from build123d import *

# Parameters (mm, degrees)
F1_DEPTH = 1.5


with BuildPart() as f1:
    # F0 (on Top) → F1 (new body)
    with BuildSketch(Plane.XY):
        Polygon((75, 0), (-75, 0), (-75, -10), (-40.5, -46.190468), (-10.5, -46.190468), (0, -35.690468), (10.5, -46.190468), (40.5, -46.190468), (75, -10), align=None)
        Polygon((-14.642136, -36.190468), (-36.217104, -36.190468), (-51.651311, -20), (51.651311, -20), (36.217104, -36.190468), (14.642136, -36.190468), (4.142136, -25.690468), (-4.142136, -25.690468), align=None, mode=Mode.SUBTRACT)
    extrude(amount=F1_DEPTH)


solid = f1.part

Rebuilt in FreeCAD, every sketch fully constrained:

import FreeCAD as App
import Part
import Sketcher
from FreeCAD import Vector


def add_polygon(sketch, points):
    """Adds a closed chain of lines whose ends are joined by coincident constraints."""
    first, n = sketch.GeometryCount, len(points)
    for a, b in zip(points, points[1:] + points[:1]):
        sketch.addGeometry(Part.LineSegment(App.Vector(*a, 0), App.Vector(*b, 0)), False)
    for i in range(n):
        sketch.addConstraint(Sketcher.Constraint("Coincident", first + i, 2, first + (i + 1) % n, 1))

doc = App.newDocument("Part")
body = doc.addObject("PartDesign::Body", "Body")

# Sketch on XY plane
sketch1 = doc.addObject("Sketcher::SketchObject", "Sketch")
body.addObject(sketch1)
sketch1.AttachmentSupport = (doc.XY_Plane, [""])
sketch1.MapMode = "FlatFace"
add_polygon(sketch1, [(75, 0), (-75, 0), (-75, -10), (-40.5, -46.190468), (-10.5, -46.190468), (0, -35.690468), (10.5, -46.190468), (40.5, -46.190468), (75, -10)])  # lines 0-8
add_polygon(sketch1, [(-4.142136, -25.690468), (-14.642136, -36.190468), (-36.217104, -36.190468), (-51.651311, -20), (51.651311, -20), (36.217104, -36.190468), (14.642136, -36.190468), (4.142136, -25.690468)])  # lines 9-16
sketch1.addConstraint([
    Sketcher.Constraint("Horizontal", 0),
    Sketcher.Constraint("Vertical", 1),
    Sketcher.Constraint("Horizontal", 3),
    Sketcher.Constraint("Horizontal", 6),
    Sketcher.Constraint("Vertical", 8),
    Sketcher.Constraint("Horizontal", 10),
    Sketcher.Constraint("Horizontal", 12),
    Sketcher.Constraint("Horizontal", 14),
    Sketcher.Constraint("Horizontal", 16),
    Sketcher.Constraint("Symmetric", 0, 2, 8, 2, -1, 1),
    Sketcher.Constraint("Symmetric", 3, 2, 5, 2, -2),
    Sketcher.Constraint("Symmetric", 10, 2, 13, 2, -2),
    Sketcher.Constraint("PointOnObject", 4, 2, -2),
    Sketcher.Constraint("Perpendicular", 4, 5),
    Sketcher.Constraint("Perpendicular", 5, 9),
    Sketcher.Constraint("Parallel", 2, 11),
    Sketcher.Constraint("Parallel", 7, 13),
    Sketcher.Constraint("Perpendicular", 9, 15),
    Sketcher.Constraint("Horizontal", 1, 2, 7, 2),
    Sketcher.Constraint("Equal", 3, 6),
    Sketcher.Constraint("Equal", 10, 14),
    Sketcher.Constraint("Equal", 5, 9),
    Sketcher.Constraint("DistanceX", 0, 2, 0, 1, 150.0),
    Sketcher.Constraint("DistanceX", 3, 1, 3, 2, 30.0),
    Sketcher.Constraint("DistanceY", 1, 2, 1, 1, 10.0),
    Sketcher.Constraint("Distance", 2, 50.0),
    Sketcher.Constraint("DistanceY", 11, 2, -1, 1, 20.0),
    Sketcher.Constraint("DistanceX", 3, 2, 5, 2, 21.0),
    Sketcher.Constraint("DistanceY", 3, 2, 9, 2, 10.0),
    Sketcher.Constraint("DistanceX", 12, 1, 12, 2, 103.302622),
    Sketcher.Constraint("DistanceX", 10, 2, 10, 1, 21.574968),
])
pad1 = doc.addObject("PartDesign::Pad", "Pad")
body.addObject(pad1)
pad1.Profile = sketch1
pad1.Length = 1.5

doc.recompute()
